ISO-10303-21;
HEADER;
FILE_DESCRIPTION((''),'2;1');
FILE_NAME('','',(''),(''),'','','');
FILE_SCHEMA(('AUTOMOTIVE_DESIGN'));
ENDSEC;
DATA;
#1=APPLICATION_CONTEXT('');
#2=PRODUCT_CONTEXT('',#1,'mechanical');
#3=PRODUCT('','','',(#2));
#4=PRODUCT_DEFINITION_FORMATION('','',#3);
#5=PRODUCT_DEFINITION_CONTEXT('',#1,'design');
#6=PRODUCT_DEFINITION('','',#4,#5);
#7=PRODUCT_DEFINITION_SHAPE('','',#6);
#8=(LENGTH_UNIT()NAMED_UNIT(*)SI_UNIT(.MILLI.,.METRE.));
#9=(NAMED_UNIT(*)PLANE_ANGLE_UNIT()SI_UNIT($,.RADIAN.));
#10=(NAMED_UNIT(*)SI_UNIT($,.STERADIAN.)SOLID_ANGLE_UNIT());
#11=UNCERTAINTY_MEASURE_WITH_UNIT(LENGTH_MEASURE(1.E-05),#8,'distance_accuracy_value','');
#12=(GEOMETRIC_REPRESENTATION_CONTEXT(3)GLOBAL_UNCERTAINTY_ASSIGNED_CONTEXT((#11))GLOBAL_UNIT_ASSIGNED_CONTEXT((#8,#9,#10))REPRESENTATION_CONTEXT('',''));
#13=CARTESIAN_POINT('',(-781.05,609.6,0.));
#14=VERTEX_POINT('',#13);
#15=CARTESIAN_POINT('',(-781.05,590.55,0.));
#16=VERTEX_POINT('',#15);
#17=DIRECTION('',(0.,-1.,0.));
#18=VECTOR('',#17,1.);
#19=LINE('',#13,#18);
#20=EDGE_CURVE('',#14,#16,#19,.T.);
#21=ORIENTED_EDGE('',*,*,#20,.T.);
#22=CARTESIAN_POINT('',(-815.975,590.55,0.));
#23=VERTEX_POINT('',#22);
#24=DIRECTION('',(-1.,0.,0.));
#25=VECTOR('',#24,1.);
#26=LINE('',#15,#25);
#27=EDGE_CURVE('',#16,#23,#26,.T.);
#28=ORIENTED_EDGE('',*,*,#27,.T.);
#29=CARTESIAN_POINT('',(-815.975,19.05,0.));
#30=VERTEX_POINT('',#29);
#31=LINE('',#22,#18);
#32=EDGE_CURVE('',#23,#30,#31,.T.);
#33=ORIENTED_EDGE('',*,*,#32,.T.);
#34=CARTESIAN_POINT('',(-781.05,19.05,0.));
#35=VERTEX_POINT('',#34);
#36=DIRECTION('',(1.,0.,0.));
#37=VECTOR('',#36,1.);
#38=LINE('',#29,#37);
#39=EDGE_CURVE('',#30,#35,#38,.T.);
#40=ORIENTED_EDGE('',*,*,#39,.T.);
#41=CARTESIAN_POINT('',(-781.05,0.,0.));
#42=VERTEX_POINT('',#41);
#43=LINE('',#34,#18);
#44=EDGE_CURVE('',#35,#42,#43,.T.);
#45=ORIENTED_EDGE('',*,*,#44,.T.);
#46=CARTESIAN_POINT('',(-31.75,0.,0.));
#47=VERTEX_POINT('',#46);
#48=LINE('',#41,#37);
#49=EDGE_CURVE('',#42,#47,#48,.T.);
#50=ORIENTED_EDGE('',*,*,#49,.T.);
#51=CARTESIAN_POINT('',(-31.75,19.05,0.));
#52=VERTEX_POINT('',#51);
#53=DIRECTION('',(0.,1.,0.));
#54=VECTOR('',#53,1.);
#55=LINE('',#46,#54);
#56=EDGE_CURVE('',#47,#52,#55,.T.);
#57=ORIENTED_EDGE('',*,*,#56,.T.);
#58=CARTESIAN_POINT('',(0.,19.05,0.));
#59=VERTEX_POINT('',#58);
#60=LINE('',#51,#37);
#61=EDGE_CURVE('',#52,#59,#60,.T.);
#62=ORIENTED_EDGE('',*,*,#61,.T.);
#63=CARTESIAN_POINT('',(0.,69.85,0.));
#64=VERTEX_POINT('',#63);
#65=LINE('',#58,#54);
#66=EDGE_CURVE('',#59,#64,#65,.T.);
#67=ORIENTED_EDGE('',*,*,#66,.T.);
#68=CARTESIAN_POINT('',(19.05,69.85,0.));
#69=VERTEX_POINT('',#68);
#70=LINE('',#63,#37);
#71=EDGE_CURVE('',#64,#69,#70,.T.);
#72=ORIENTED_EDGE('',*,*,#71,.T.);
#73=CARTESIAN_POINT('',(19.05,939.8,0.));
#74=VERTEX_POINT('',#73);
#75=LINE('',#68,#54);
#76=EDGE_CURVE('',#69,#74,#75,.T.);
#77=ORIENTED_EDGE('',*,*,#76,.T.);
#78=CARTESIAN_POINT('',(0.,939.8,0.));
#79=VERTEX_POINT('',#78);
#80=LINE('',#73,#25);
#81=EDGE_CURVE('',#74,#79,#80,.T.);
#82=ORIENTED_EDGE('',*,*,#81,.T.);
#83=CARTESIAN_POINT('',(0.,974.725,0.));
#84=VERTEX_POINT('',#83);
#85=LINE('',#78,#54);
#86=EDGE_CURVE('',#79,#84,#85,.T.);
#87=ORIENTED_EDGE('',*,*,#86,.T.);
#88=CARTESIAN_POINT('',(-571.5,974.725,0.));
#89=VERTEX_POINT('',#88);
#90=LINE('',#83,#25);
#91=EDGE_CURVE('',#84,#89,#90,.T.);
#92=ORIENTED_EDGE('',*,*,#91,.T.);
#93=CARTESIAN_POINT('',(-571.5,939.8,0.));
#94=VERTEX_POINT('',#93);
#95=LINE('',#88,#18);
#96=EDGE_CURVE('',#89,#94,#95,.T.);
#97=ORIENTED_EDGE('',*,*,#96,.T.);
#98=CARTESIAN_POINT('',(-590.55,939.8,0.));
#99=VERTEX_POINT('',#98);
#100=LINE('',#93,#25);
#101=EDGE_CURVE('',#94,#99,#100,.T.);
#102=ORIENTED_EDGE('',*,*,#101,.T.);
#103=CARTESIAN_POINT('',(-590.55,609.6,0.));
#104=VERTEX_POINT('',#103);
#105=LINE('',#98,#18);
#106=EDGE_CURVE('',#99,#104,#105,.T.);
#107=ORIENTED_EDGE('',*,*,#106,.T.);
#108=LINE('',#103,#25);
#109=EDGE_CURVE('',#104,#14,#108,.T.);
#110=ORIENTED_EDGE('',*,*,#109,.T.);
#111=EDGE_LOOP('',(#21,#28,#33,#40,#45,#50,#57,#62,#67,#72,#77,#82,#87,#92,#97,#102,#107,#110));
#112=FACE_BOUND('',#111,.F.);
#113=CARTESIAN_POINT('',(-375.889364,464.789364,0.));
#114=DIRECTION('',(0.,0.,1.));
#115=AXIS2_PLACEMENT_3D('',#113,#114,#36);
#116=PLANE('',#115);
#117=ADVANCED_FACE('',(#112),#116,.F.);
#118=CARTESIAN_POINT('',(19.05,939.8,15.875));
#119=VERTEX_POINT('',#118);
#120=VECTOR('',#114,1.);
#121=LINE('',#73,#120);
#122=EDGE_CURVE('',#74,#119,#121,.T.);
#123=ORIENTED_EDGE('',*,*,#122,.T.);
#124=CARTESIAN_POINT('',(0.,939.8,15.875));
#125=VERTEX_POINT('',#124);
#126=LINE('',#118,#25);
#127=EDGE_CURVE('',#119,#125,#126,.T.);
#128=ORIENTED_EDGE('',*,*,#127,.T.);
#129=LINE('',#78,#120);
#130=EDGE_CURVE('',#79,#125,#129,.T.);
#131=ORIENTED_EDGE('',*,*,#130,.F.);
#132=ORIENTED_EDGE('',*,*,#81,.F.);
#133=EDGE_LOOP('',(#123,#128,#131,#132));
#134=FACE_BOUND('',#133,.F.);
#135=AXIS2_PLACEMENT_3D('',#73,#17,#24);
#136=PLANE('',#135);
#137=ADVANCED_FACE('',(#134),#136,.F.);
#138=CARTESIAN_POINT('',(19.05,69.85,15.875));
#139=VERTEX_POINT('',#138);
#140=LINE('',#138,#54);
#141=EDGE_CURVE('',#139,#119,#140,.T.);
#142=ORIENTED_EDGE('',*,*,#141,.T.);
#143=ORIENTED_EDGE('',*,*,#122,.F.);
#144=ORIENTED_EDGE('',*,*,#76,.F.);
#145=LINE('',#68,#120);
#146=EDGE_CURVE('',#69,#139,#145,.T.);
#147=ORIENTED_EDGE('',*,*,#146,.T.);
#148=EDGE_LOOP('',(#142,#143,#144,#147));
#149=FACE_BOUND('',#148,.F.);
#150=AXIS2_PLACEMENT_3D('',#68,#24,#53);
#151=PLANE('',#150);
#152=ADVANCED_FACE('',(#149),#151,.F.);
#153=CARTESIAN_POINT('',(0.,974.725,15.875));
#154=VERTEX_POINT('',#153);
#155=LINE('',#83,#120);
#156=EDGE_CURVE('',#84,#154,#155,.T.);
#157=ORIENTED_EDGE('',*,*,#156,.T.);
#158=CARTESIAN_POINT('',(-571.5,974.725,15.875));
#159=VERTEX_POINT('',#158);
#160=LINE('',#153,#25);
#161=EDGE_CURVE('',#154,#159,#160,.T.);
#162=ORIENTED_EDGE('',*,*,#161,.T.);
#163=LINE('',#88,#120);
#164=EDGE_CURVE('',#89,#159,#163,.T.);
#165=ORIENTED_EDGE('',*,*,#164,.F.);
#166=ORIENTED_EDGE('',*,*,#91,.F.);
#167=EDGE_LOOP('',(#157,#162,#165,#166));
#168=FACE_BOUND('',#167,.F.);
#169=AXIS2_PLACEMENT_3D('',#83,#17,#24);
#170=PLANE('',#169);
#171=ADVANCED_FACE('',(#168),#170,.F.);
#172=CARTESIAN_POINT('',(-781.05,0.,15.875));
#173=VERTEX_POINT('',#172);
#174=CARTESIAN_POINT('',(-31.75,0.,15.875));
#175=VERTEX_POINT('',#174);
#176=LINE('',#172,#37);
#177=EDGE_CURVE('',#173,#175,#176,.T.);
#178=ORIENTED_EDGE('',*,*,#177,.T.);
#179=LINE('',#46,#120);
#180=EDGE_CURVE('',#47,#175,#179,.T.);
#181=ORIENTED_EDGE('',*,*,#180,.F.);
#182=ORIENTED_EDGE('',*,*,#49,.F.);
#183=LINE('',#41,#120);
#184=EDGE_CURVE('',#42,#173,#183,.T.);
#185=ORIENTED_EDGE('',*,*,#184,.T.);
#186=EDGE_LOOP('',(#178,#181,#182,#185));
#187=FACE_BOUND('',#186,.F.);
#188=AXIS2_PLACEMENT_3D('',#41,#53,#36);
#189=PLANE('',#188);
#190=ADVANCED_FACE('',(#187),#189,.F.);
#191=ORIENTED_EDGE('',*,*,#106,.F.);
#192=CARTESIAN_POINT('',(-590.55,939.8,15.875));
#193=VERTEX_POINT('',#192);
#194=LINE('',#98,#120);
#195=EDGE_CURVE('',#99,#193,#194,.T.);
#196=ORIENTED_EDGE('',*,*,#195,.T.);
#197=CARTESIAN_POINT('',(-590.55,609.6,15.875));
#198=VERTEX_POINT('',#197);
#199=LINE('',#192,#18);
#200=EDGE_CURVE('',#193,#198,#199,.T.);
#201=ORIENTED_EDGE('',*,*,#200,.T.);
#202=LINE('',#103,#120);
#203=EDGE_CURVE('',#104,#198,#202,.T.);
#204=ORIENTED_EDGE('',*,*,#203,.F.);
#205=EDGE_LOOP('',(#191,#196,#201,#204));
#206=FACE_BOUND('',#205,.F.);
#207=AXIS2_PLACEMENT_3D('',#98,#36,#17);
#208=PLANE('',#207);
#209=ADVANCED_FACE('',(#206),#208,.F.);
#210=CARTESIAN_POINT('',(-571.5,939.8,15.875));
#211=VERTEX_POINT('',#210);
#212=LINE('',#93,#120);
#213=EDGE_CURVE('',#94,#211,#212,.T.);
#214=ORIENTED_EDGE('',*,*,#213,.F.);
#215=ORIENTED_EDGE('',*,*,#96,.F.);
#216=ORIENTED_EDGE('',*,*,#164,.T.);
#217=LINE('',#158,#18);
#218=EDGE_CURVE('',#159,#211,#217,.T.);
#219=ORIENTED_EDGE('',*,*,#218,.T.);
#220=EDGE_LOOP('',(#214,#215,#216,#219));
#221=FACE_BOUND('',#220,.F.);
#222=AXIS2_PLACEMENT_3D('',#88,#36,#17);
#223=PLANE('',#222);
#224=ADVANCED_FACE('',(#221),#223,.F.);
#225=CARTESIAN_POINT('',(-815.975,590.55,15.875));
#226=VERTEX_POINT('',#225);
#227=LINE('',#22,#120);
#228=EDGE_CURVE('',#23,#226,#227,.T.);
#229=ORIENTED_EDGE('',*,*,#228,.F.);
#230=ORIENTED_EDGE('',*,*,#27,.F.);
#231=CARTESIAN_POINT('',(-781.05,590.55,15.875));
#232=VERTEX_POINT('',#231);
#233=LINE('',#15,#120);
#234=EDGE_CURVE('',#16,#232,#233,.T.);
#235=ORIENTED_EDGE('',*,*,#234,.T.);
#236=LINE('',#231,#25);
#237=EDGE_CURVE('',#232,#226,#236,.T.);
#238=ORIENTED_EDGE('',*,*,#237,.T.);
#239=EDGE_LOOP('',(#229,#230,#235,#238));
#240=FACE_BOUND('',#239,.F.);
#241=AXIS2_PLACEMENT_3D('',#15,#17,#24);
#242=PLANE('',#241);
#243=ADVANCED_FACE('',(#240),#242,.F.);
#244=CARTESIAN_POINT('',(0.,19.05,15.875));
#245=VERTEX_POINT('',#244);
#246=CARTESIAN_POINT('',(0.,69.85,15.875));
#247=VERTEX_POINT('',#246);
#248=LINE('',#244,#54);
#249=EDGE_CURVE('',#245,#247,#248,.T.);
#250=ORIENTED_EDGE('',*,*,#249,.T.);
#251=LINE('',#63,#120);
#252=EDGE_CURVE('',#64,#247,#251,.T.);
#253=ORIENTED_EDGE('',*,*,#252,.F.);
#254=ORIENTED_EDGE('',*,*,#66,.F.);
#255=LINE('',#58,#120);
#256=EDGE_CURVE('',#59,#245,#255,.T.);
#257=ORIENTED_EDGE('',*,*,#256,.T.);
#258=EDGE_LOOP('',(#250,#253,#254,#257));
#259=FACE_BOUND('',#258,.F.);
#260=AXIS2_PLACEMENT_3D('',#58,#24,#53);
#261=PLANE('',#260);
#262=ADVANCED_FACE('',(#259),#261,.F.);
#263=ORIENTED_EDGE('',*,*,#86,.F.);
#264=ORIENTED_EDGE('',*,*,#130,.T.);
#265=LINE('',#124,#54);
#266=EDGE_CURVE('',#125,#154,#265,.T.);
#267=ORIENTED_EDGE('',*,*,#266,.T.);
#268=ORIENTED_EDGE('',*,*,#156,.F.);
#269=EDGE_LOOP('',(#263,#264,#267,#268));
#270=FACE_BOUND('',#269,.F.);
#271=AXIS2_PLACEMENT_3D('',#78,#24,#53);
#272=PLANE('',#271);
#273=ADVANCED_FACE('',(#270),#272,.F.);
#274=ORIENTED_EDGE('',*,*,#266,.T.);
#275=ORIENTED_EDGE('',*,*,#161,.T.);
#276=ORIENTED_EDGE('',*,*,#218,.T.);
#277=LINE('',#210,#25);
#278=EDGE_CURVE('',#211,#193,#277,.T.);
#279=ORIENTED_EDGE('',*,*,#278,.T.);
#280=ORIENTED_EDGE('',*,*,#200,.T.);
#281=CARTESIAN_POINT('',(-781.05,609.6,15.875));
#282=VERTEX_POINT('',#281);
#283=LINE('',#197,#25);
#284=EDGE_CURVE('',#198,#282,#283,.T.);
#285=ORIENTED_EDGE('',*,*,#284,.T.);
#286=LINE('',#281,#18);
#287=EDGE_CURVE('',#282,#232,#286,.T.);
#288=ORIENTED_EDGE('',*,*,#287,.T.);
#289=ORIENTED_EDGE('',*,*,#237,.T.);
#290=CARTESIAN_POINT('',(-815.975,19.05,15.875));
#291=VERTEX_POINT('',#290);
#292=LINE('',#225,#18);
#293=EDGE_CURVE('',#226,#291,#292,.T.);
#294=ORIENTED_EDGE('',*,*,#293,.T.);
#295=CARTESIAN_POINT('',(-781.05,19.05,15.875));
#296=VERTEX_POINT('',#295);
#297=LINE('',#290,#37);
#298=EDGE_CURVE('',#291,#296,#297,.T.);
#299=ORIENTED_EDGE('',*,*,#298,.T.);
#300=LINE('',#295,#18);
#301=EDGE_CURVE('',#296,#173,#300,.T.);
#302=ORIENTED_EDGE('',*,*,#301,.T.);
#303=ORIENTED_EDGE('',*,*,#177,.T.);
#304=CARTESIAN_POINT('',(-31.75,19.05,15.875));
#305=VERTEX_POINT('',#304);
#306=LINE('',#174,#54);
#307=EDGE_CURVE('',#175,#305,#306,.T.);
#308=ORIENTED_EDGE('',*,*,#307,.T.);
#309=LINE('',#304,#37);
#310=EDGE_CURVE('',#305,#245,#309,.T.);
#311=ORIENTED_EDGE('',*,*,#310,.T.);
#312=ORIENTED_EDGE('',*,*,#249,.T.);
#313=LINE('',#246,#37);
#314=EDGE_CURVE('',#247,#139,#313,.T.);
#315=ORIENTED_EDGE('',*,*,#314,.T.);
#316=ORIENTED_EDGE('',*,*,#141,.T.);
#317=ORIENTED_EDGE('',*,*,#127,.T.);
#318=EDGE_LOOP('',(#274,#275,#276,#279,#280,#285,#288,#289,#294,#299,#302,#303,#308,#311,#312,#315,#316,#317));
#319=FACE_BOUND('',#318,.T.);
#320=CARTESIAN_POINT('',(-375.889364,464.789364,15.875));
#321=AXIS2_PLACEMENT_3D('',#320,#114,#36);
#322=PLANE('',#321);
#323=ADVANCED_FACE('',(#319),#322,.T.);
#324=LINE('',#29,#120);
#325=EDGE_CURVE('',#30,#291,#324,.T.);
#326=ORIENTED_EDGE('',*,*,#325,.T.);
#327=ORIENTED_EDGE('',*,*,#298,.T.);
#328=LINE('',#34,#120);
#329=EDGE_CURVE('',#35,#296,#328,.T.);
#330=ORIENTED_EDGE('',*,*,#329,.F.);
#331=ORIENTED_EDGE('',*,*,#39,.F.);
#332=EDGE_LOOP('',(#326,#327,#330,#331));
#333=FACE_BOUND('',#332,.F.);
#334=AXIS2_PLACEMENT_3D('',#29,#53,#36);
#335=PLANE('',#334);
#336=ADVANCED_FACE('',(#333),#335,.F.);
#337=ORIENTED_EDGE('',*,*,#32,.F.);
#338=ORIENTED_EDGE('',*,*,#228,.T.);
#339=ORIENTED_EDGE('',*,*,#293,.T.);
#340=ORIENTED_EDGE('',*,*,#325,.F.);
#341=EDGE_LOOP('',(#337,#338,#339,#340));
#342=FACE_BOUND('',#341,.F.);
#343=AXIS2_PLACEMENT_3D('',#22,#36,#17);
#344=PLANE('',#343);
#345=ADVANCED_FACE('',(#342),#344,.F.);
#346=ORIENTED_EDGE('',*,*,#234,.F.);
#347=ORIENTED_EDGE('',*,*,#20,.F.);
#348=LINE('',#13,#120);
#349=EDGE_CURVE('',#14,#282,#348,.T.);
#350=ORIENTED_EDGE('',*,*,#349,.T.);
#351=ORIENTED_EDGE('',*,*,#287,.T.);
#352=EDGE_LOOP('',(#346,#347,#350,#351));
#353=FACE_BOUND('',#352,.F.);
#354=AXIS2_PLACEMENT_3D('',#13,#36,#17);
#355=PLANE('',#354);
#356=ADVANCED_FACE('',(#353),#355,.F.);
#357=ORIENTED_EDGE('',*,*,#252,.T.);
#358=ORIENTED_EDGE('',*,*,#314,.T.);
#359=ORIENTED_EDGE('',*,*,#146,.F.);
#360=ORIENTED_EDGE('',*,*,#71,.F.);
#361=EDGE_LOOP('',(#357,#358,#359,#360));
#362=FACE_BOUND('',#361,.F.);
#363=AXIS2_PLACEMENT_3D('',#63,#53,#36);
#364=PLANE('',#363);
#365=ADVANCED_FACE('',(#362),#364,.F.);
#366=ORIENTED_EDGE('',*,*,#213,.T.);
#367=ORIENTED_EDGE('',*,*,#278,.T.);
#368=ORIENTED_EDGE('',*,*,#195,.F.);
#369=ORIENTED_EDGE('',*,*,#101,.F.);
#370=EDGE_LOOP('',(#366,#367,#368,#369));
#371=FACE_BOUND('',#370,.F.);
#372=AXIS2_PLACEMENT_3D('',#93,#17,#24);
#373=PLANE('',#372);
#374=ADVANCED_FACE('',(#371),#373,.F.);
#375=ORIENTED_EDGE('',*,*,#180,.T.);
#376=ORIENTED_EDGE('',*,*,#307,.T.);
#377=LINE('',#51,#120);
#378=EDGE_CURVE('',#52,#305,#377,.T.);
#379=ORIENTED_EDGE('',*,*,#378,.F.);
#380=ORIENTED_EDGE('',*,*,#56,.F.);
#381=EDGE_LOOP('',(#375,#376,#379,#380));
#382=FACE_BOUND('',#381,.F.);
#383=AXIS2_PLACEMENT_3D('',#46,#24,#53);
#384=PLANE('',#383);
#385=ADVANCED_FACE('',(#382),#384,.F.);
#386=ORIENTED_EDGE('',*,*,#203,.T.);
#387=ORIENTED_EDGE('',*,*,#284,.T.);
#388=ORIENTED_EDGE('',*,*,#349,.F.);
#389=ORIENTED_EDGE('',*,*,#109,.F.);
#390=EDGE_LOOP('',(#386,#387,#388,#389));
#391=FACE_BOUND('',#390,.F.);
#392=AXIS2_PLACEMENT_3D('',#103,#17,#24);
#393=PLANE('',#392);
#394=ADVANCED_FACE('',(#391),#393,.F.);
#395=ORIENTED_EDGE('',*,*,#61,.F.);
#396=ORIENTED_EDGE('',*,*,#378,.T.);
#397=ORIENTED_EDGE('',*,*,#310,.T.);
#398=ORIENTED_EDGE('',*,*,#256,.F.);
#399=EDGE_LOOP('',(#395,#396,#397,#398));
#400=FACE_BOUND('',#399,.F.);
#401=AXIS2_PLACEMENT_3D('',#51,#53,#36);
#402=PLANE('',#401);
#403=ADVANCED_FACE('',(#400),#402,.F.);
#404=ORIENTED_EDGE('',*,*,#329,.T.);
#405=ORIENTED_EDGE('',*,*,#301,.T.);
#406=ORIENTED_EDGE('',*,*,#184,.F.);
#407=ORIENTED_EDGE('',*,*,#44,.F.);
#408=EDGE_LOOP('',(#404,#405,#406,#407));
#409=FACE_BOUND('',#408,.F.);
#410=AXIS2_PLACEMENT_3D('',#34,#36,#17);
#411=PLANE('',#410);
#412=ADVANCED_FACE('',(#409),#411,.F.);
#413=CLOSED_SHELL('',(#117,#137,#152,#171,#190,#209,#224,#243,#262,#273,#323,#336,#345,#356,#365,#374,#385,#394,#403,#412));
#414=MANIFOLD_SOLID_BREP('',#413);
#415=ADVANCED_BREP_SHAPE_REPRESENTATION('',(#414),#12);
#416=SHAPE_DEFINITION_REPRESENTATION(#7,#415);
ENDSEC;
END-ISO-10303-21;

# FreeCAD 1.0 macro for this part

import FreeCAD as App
import Part
import Sketcher

V = App.Vector
Q = App.Units.Quantity

doc = App.newDocument("Part")
body = doc.addObject("PartDesign::Body", "Body")

sketch1 = body.newObject("Sketcher::SketchObject", "Sketch")
sketch1.AttachmentSupport = (doc.getObject("XY_Plane"), [""])
sketch1.MapMode = "FlatFace"
sketch1.addGeometry([
    Part.LineSegment(V(-781, 0, 0), V(-32, 0, 0)),
    Part.LineSegment(V(-32, 0, 0), V(-32, 19, 0)),
    Part.LineSegment(V(-32, 19, 0), V(0, 19, 0)),
    Part.LineSegment(V(0, 19, 0), V(0, 70, 0)),
    Part.LineSegment(V(0, 70, 0), V(19, 70, 0)),
    Part.LineSegment(V(19, 70, 0), V(19, 940, 0)),
    Part.LineSegment(V(19, 940, 0), V(0, 940, 0)),
    Part.LineSegment(V(0, 940, 0), V(0, 975, 0)),
    Part.LineSegment(V(0, 975, 0), V(-572, 975, 0)),
    Part.LineSegment(V(-572, 975, 0), V(-572, 940, 0)),
    Part.LineSegment(V(-572, 940, 0), V(-591, 940, 0)),
    Part.LineSegment(V(-591, 940, 0), V(-591, 610, 0)),
    Part.LineSegment(V(-591, 610, 0), V(-781, 610, 0)),
    Part.LineSegment(V(-781, 610, 0), V(-781, 591, 0)),
    Part.LineSegment(V(-781, 591, 0), V(-816, 591, 0)),
    Part.LineSegment(V(-816, 591, 0), V(-816, 19, 0)),
    Part.LineSegment(V(-816, 19, 0), V(-781, 19, 0)),
    Part.LineSegment(V(-781, 19, 0), V(-781, 0, 0)),
], False)
sketch1.addConstraint([
    Sketcher.Constraint("Coincident", 0, 2, 1, 1),
    Sketcher.Constraint("Coincident", 1, 2, 2, 1),
    Sketcher.Constraint("Coincident", 2, 2, 3, 1),
    Sketcher.Constraint("Coincident", 3, 2, 4, 1),
    Sketcher.Constraint("Coincident", 4, 2, 5, 1),
    Sketcher.Constraint("Coincident", 5, 2, 6, 1),
    Sketcher.Constraint("Coincident", 6, 2, 7, 1),
    Sketcher.Constraint("Coincident", 7, 2, 8, 1),
    Sketcher.Constraint("Coincident", 8, 2, 9, 1),
    Sketcher.Constraint("Coincident", 9, 2, 10, 1),
    Sketcher.Constraint("Coincident", 10, 2, 11, 1),
    Sketcher.Constraint("Coincident", 11, 2, 12, 1),
    Sketcher.Constraint("Coincident", 12, 2, 13, 1),
    Sketcher.Constraint("Coincident", 13, 2, 14, 1),
    Sketcher.Constraint("Coincident", 14, 2, 15, 1),
    Sketcher.Constraint("Coincident", 15, 2, 16, 1),
    Sketcher.Constraint("Coincident", 16, 2, 17, 1),
    Sketcher.Constraint("Coincident", 17, 2, 0, 1),
    Sketcher.Constraint("Horizontal", 0),
    Sketcher.Constraint("Vertical", 1),
    Sketcher.Constraint("Horizontal", 2),
    Sketcher.Constraint("Vertical", 3),
    Sketcher.Constraint("Horizontal", 4),
    Sketcher.Constraint("Vertical", 5),
    Sketcher.Constraint("Horizontal", 6),
    Sketcher.Constraint("Vertical", 7),
    Sketcher.Constraint("Horizontal", 8),
    Sketcher.Constraint("Vertical", 9),
    Sketcher.Constraint("Horizontal", 10),
    Sketcher.Constraint("Vertical", 11),
    Sketcher.Constraint("Horizontal", 12),
    Sketcher.Constraint("Vertical", 13),
    Sketcher.Constraint("Horizontal", 14),
    Sketcher.Constraint("Vertical", 15),
    Sketcher.Constraint("Horizontal", 16),
    Sketcher.Constraint("Vertical", 17),
    Sketcher.Constraint("PointOnObject", 0, 2, -1),
    Sketcher.Constraint("PointOnObject", 2, 2, -2),
    Sketcher.Constraint("PointOnObject", 6, 2, -2),
    Sketcher.Constraint("Horizontal", 6, 2, 9, 2),
    Sketcher.Constraint("Horizontal", 2, 2, 15, 2),
    Sketcher.Constraint("Vertical", 13, 2, 16, 2),
    Sketcher.Constraint("Equal", 6, 10),
    Sketcher.Constraint("Equal", 10, 1),
    Sketcher.Constraint("Equal", 16, 7),
    Sketcher.Constraint("Equal", 1, 13),
    Sketcher.Constraint("Equal", 8, 15),
    Sketcher.Constraint("DistanceY", 3, 1, 3, 2, Q("2 in")),
    Sketcher.Constraint("DistanceY", 11, 2, 11, 1, Q("13 in")),
    Sketcher.Constraint("DistanceX", 0, 1, 0, 2, Q("29.5 in")),
    Sketcher.Constraint("DistanceX", 8, 2, 8, 1, Q("22.5 in")),
    Sketcher.Constraint("DistanceX", 12, 2, 12, 1, Q("7.5 in")),
    Sketcher.Constraint("DistanceY", -1, 1, 5, 2, Q("37 in")),
    Sketcher.Constraint("DistanceX", 14, 2, 14, 1, Q("1.375 in")),
])
pad1 = body.newObject("PartDesign::Pad", "Pad")
pad1.Profile = sketch1
pad1.Length = Q("0.625 in")

doc.recompute()
